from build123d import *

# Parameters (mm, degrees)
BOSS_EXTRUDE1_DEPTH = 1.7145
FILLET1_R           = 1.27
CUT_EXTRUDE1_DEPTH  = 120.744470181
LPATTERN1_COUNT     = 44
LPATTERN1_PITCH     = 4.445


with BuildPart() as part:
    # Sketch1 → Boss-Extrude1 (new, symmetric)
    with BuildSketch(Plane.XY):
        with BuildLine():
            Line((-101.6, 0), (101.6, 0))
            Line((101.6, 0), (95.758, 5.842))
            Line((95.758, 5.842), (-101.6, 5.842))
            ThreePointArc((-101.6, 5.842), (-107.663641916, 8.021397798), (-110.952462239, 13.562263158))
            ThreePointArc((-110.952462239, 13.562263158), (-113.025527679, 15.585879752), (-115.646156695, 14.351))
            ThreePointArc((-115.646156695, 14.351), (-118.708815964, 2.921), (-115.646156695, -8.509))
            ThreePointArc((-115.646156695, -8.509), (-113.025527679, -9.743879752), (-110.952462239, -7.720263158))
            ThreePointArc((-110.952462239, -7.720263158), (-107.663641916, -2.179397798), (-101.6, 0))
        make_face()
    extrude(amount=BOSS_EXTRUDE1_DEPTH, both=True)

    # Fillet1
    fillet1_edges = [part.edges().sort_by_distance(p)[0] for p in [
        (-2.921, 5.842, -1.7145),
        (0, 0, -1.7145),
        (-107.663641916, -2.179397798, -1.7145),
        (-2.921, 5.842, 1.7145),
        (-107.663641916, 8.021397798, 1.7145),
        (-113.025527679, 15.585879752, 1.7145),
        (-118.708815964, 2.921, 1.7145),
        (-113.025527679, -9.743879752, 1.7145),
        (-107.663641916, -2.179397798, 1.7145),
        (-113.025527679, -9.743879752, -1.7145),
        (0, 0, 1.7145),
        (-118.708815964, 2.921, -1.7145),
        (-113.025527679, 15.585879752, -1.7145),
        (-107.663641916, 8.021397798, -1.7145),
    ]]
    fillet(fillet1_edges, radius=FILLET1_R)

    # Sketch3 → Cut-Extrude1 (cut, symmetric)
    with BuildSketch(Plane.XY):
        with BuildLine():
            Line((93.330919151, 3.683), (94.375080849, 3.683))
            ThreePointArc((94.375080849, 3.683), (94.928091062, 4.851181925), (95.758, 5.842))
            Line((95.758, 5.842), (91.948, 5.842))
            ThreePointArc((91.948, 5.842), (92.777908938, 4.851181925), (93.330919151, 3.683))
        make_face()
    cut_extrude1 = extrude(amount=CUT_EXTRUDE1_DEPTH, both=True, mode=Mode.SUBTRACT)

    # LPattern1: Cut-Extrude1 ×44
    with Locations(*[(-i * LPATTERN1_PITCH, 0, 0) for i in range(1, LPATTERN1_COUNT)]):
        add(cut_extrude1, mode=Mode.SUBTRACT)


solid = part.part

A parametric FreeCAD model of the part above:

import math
import FreeCAD as App
import Part
import Sketcher
from FreeCAD import Vector
Q = App.Units.Quantity


def edges_at(feature, points):
    """Names of the edges that pass closest to the given points."""
    edges = feature.Shape.Edges
    near = lambda p: min(range(len(edges)), key=lambda i: edges[i].distToShape(Part.Vertex(*p))[0])
    return sorted({f"Edge{near(p) + 1}" for p in points})

doc = App.newDocument("Part")
params = doc.addObject("Spreadsheet::Sheet", "Params")
for row, (alias, value) in enumerate([
    ("sketch1_radius", "0.1 in"),
    ("sketch1_radius2", "0.9 in"),
    ("sketch1_width", "8 in"),
    ("sketch1_radius3", "0.375 in"),
    ("sketch1_width2", "7.77 in"),
    ("pad1_length", "0.135 in"),
    ("fillet_radius", "0.05 in"),
    ("sketch2_radius", "0.2 in"),
    ("sketch2_width", "0.15 in"),
    ("pocket1_length", "241.48894 mm"),
    ("linearpattern_pitch", "0.175 in"),
], start=1):
    params.set(f"A{row}", alias)
    params.set(f"B{row}", "=" + value)
    params.setAlias(f"B{row}", alias)

body = doc.addObject("PartDesign::Body", "Body")

# Sketch on XY plane
sketch1 = body.newObject("Sketcher::SketchObject", "Sketch")
sketch1.AttachmentSupport = (doc.getObject("XY_Plane"), [""])
sketch1.MapMode = "FlatFace"
sketch1.addGeometry([
    Part.LineSegment(Vector(-101.6, 0, 0), Vector(101.6, 0, 0)),  # 0
    Part.LineSegment(Vector(101.6, 0, 0), Vector(95.758, 5.842, 0)),  # 1
    Part.LineSegment(Vector(95.758, 5.842, 0), Vector(-101.6, 5.842, 0)),  # 2
    Part.ArcOfCircle(Part.Circle(Vector(-101.6, 15.367, 0), Vector(0, 0, 1), 9.525), math.radians(-169.077929), math.radians(-90)),  # 3
    Part.ArcOfCircle(Part.Circle(Vector(-113.446452, 13.081, 0), Vector(0, 0, 1), 2.54), math.radians(10.922071), math.radians(150)),  # 4
    Part.ArcOfCircle(Part.Circle(Vector(-95.848816, 2.921, 0), Vector(0, 0, 1), 22.86), math.radians(150), math.radians(210)),  # 5
    Part.ArcOfCircle(Part.Circle(Vector(-113.446452, -7.239, 0), Vector(0, 0, 1), 2.54), math.radians(-150), math.radians(-10.922071)),  # 6
    Part.ArcOfCircle(Part.Circle(Vector(-101.6, -9.525, 0), Vector(0, 0, 1), 9.525), math.radians(90), math.radians(169.077929)),  # 7
], False)
sketch1.addConstraint([
    Sketcher.Constraint("Coincident", 0, 2, 1, 1),
    Sketcher.Constraint("Coincident", 1, 2, 2, 1),
    Sketcher.Constraint("Tangent", 2, 2, 3, 2),
    Sketcher.Constraint("Tangent", 3, 1, 4, 1),
    Sketcher.Constraint("Tangent", 4, 2, 5, 1),
    Sketcher.Constraint("Tangent", 5, 2, 6, 1),
    Sketcher.Constraint("Tangent", 6, 2, 7, 2),
    Sketcher.Constraint("Tangent", 7, 1, 0, 1),
    Sketcher.Constraint("Horizontal", 0),
    Sketcher.Constraint("Horizontal", 2),
    Sketcher.Constraint("Equal", 4, 6),
    Sketcher.Constraint("Equal", 3, 7),
    Sketcher.Constraint("Symmetric", 0, 2, 7, 1, -1, 1),
    Sketcher.Constraint("Vertical", 4, 3, 6, 3),
    Sketcher.Constraint("Vertical", 3, 3, 7, 3),
    Sketcher.Constraint("Radius", 4, Q("0.1 in")),
    Sketcher.Constraint("Radius", 5, Q("0.9 in")),
    Sketcher.Constraint("DistanceX", 0, 1, 0, 2, Q("8 in")),
    Sketcher.Constraint("Angle", 1, Q("135 deg")),
    Sketcher.Constraint("Radius", 3, Q("0.375 in")),
    Sketcher.Constraint("DistanceX", 2, 2, 2, 1, Q("7.77 in")),
    Sketcher.Constraint("DistanceY", 5, 3, 4, 3, Q("0.4 in")),
])
sketch1.setExpression("Constraints[15]", "Params.sketch1_radius")
sketch1.setExpression("Constraints[16]", "Params.sketch1_radius2")
sketch1.setExpression("Constraints[17]", "Params.sketch1_width")
sketch1.setExpression("Constraints[19]", "Params.sketch1_radius3")
sketch1.setExpression("Constraints[20]", "Params.sketch1_width2")
pad1 = body.newObject("PartDesign::Pad", "Pad")
pad1.Profile = sketch1
pad1.setExpression("Length", "Params.pad1_length")
pad1.Midplane = True
doc.recompute()

fillet = body.newObject("PartDesign::Fillet", "Fillet")
fillet.Base = (pad1, edges_at(pad1, [
    (-2.921, 5.842, -1.714),
    (0, 0, -1.714),
    (-107.664, -2.179, -1.714),
    (-2.921, 5.842, 1.714),
    (-107.664, 8.021, 1.714),
    (-113.026, 15.586, 1.714),
    (-118.709, 2.921, 1.714),
    (-113.026, -9.744, 1.714),
    (-107.664, -2.179, 1.714),
    (-113.026, -9.744, -1.714),
    (0, 0, 1.714),
    (-118.709, 2.921, -1.714),
    (-113.026, 15.586, -1.714),
    (-107.664, 8.021, -1.714),
]))
fillet.setExpression("Radius", "Params.fillet_radius")

# Sketch on XY plane
sketch2 = body.newObject("Sketcher::SketchObject", "Sketch001")
sketch2.AttachmentSupport = (doc.getObject("XY_Plane"), [""])
sketch2.MapMode = "FlatFace"
sketch2.addGeometry([
    Part.LineSegment(Vector(93.330919, 3.683, 0), Vector(94.375081, 3.683, 0)),
    Part.ArcOfCircle(Part.Circle(Vector(99.205787, 2.11116, 0), Vector(0, 0, 1), 5.08), math.radians(132.741997), math.radians(161.975881)),
    Part.LineSegment(Vector(95.758, 5.842, 0), Vector(91.948, 5.842, 0)),
    Part.ArcOfCircle(Part.Circle(Vector(88.500213, 2.11116, 0), Vector(0, 0, 1), 5.08), math.radians(18.024119), math.radians(47.258003)),
], False)
sketch2.addConstraint([
    Sketcher.Constraint("Coincident", 0, 2, 1, 2),
    Sketcher.Constraint("Coincident", 1, 1, 2, 1),
    Sketcher.Constraint("Coincident", 2, 2, 3, 2),
    Sketcher.Constraint("Coincident", 3, 1, 0, 1),
    Sketcher.Constraint("Horizontal", 0),
    Sketcher.Constraint("Horizontal", 2),
    Sketcher.Constraint("Equal", 1, 3),
    Sketcher.Constraint("Horizontal", 1, 3, 3, 3),
    Sketcher.Constraint("Radius", 1, Q("0.2 in")),
    Sketcher.Constraint("DistanceX", 2, 2, 2, 1, Q("0.15 in")),
    Sketcher.Constraint("DistanceX", -1, 1, 1, 1, Q("3.77 in")),
    Sketcher.Constraint("DistanceY", -1, 1, 1, 1, Q("0.23 in")),
    Sketcher.Constraint("DistanceY", -1, 1, 0, 2, Q("0.145 in")),
    Sketcher.Constraint("DistanceX", 0, 1, 0, 2, 1.044162),
])
sketch2.setExpression("Constraints[8]", "Params.sketch2_radius")
sketch2.setExpression("Constraints[9]", "Params.sketch2_width")
pocket1 = body.newObject("PartDesign::Pocket", "Pocket")
pocket1.Profile = sketch2
pocket1.setExpression("Length", "Params.pocket1_length")
pocket1.Midplane = True
doc.recompute()

linearpattern = body.newObject("PartDesign::LinearPattern", "LinearPattern")
linearpattern.Originals = [pocket1]
linearpattern.Direction = (doc.getObject("X_Axis"), [""])
linearpattern.Mode = "offset"
linearpattern.setExpression("Offset", "Params.linearpattern_pitch")
linearpattern.Occurrences = 44
linearpattern.Reversed = True
body.Tip = linearpattern

doc.recompute()
